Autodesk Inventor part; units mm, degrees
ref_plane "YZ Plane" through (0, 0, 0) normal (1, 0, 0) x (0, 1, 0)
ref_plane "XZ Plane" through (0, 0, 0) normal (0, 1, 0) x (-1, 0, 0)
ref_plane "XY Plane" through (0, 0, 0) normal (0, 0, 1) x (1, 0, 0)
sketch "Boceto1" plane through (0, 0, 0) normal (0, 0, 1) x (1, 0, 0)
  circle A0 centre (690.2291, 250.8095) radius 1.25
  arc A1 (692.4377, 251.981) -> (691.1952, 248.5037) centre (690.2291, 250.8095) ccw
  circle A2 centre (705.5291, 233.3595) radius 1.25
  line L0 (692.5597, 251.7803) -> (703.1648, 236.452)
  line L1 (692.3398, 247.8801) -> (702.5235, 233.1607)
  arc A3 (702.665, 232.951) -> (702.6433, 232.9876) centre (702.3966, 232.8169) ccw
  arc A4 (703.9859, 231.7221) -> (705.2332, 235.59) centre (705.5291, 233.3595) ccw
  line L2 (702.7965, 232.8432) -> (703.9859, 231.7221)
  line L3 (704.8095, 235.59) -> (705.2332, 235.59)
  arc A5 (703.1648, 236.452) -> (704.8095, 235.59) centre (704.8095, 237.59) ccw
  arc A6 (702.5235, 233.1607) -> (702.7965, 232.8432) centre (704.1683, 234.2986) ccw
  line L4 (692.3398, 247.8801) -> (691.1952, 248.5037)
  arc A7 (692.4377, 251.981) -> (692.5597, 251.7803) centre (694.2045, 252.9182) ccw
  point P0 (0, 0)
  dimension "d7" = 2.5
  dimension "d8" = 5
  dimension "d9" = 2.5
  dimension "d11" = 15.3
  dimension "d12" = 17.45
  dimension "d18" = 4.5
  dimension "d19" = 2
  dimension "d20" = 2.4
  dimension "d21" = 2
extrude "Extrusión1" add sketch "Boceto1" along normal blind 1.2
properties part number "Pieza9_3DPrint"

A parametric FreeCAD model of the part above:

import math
import FreeCAD as App
import Part
import Sketcher

V = App.Vector
Q = App.Units.Quantity

doc = App.newDocument("Part")
body = doc.addObject("PartDesign::Body", "Body")

# Sketch on XY plane
sketch1 = body.newObject("Sketcher::SketchObject", "Sketch")
sketch1.AttachmentSupport = (doc.getObject("XY_Plane"), [""])
sketch1.MapMode = "FlatFace"
sketch1.addGeometry([
    Part.ArcOfCircle(Part.Circle(V(694.22, 252.93, 0), V(0, 0, 1), 2.02), math.radians(-152.04), math.radians(-145.37)),  # 0
    Part.ArcOfCircle(Part.Circle(V(690.23, 250.81, 0), V(0, 0, 1), 2.5), math.radians(28), math.radians(293)),  # 1
    Part.LineSegment(V(691.2, 248.5, 0), V(692.34, 247.88, 0)),  # 2
    Part.LineSegment(V(692.34, 247.88, 0), V(702.52, 233.16, 0)),  # 3
    Part.ArcOfCircle(Part.Circle(V(704.17, 234.3, 0), V(0, 0, 1), 2), math.radians(-145.33), math.radians(-133.29)),  # 4
    Part.LineSegment(V(702.8, 232.84, 0), V(703.99, 231.72, 0)),  # 5
    Part.ArcOfCircle(Part.Circle(V(705.53, 233.36, 0), V(0, 0, 1), 2.25), math.radians(-133), math.radians(98)),  # 6
    Part.LineSegment(V(705.23, 235.59, 0), V(704.81, 235.59, 0)),  # 7
    Part.ArcOfCircle(Part.Circle(V(704.81, 237.59, 0), V(0, 0, 1), 2), math.radians(-145), math.radians(-90)),  # 8
    Part.LineSegment(V(703.16, 236.45, 0), V(692.56, 251.78, 0)),  # 9
    Part.Circle(V(705.53, 233.36, 0), V(0, 0, 1), 1.25),  # 10
    Part.Circle(V(690.23, 250.81, 0), V(0, 0, 1), 1.25),  # 11
], False)
sketch1.addConstraint([
    Sketcher.Constraint("Tangent", 0, 1, 1, 1),
    Sketcher.Constraint("Coincident", 1, 2, 2, 1),
    Sketcher.Constraint("Coincident", 2, 2, 3, 1),
    Sketcher.Constraint("Tangent", 3, 2, 4, 1),
    Sketcher.Constraint("Tangent", 4, 2, 5, 1),
    Sketcher.Constraint("Tangent", 5, 2, 6, 1),
    Sketcher.Constraint("Coincident", 6, 2, 7, 1),
    Sketcher.Constraint("Tangent", 7, 2, 8, 2),
    Sketcher.Constraint("Tangent", 8, 1, 9, 1),
    Sketcher.Constraint("Coincident", 9, 2, 0, 2),
    Sketcher.Constraint("Horizontal", 7),
    Sketcher.Constraint("Coincident", 10, 3, 6, 3),
    Sketcher.Constraint("Coincident", 11, 3, 1, 3),
    Sketcher.Constraint("Equal", 10, 11),
    Sketcher.Constraint("Parallel", 3, 9),
    Sketcher.Constraint("Radius", 8, Q("2 mm")),
    Sketcher.Constraint("Diameter", 10, Q("2.5 mm")),
    Sketcher.Constraint("Radius", 1, Q("2.5 mm")),
    Sketcher.Constraint("Radius", 6, Q("2.25 mm")),
    Sketcher.Constraint("DistanceX", 1, 3, 6, 3, Q("15.3 mm")),
    Sketcher.Constraint("DistanceY", 6, 3, 1, 3, Q("17.45 mm")),
    Sketcher.Constraint("Radius", 0, Q("2.0188 mm")),
    Sketcher.Constraint("Radius", 4, Q("1.9964 mm")),
    Sketcher.Constraint("DistanceY", -1, 1, 8, 3, Q("237.59 mm")),
    Sketcher.Constraint("DistanceY", -1, 1, 2, 2, Q("247.88 mm")),
    Sketcher.Constraint("DistanceX", 7, 2, 7, 1, Q("0.4237 mm")),
    Sketcher.Constraint("DistanceX", -1, 1, 1, 3, Q("690.229 mm")),
    Sketcher.Constraint("DistanceY", -1, 1, 0, 1, Q("251.981 mm")),
    Sketcher.Constraint("DistanceX", -1, 1, 5, 2, Q("703.986 mm")),
    Sketcher.Constraint("DistanceY", -1, 1, 5, 2, Q("231.722 mm")),
    Sketcher.Constraint("DistanceY", 4, 3, 0, 3, Q("18.631 mm")),
    Sketcher.Constraint("DistanceX", 0, 1, 9, 2, Q("0.122 mm")),
    Sketcher.Constraint("Distance", 2, Q("1.3035 mm")),
])
pad1 = body.newObject("PartDesign::Pad", "Pad")
pad1.Profile = sketch1
pad1.Length = 1.2

doc.recompute()
